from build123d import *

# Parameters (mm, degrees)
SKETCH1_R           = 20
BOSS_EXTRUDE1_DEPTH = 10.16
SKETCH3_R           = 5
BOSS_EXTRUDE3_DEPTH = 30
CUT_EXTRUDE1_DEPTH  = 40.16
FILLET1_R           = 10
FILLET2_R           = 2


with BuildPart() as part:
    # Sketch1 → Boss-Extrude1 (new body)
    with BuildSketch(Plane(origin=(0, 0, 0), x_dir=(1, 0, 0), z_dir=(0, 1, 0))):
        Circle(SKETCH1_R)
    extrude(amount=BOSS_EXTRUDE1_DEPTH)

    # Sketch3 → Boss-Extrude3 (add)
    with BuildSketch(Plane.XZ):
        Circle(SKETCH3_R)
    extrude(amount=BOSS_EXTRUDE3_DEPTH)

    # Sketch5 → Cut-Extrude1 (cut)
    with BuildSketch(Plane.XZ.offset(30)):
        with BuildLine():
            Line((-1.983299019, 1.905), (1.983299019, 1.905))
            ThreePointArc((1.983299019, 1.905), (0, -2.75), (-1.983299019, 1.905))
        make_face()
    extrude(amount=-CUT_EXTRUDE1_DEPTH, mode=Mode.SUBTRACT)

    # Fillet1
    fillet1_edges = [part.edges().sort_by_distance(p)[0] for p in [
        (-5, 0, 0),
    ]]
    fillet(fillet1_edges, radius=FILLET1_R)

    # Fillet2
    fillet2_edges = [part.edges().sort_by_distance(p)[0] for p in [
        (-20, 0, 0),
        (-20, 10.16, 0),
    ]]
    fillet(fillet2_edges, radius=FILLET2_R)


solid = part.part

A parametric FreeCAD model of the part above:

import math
import FreeCAD as App
import Part
import Sketcher
from FreeCAD import Vector
Q = App.Units.Quantity


def edges_at(feature, points):
    """Names of the edges that pass closest to the given points."""
    edges = feature.Shape.Edges
    near = lambda p: min(range(len(edges)), key=lambda i: edges[i].distToShape(Part.Vertex(*p))[0])
    return sorted({f"Edge{near(p) + 1}" for p in points})

doc = App.newDocument("Part")
body = doc.addObject("PartDesign::Body", "Body")

# Sketch on XZ plane
sketch1 = body.newObject("Sketcher::SketchObject", "Sketch")
sketch1.AttachmentSupport = (doc.getObject("XZ_Plane"), [""])
sketch1.MapMode = "FlatFace"
sketch1.addGeometry(Part.Circle(Vector(0, 0, 0), Vector(0, 0, 1), 20), False)
sketch1.addConstraint(Sketcher.Constraint("Coincident", 0, 3, -1, 1))
sketch1.addConstraint(Sketcher.Constraint("Diameter", 0, Q("40 mm")))
pad1 = body.newObject("PartDesign::Pad", "Pad")
pad1.Profile = sketch1
pad1.Length = 10.16
pad1.Reversed = True

# Sketch on XZ plane
sketch2 = body.newObject("Sketcher::SketchObject", "Sketch001")
sketch2.AttachmentSupport = (doc.getObject("XZ_Plane"), [""])
sketch2.MapMode = "FlatFace"
sketch2.addGeometry(Part.Circle(Vector(0, 0, 0), Vector(0, 0, 1), 5), False)
sketch2.addConstraint(Sketcher.Constraint("Coincident", 0, 3, -1, 1))
sketch2.addConstraint(Sketcher.Constraint("Diameter", 0, Q("10 mm")))
pad2 = body.newObject("PartDesign::Pad", "Pad001")
pad2.Profile = sketch2
pad2.Length = 30

# Sketch on XZ plane
sketch3 = body.newObject("Sketcher::SketchObject", "Sketch002")
sketch3.AttachmentSupport = (doc.getObject("XZ_Plane"), [""])
sketch3.MapMode = "FlatFace"
sketch3.AttachmentOffset = App.Placement(Vector(0, 0, 30), App.Rotation())
sketch3.addGeometry(Part.LineSegment(Vector(2, 1.9, 0), Vector(-2, 1.9, 0)), False)
sketch3.addGeometry(Part.ArcOfCircle(Part.Circle(Vector(0, 0, 0), Vector(0, 0, 1), 2.8), math.radians(136), math.radians(404)), False)
sketch3.addConstraint(Sketcher.Constraint("Coincident", 0, 1, 1, 2))
sketch3.addConstraint(Sketcher.Constraint("Coincident", 1, 1, 0, 2))
sketch3.addConstraint(Sketcher.Constraint("Horizontal", 0))
sketch3.addConstraint(Sketcher.Constraint("Coincident", 1, 3, -1, 1))
sketch3.addConstraint(Sketcher.Constraint("Radius", 1, Q("2.75 mm")))
sketch3.addConstraint(Sketcher.Constraint("DistanceX", 0, 2, 0, 1, Q("3.966598 mm")))
pocket1 = body.newObject("PartDesign::Pocket", "Pocket")
pocket1.Profile = sketch3
pocket1.Length = 40.16
doc.recompute()

fillet = body.newObject("PartDesign::Fillet", "Fillet")
fillet.Base = (pocket1, edges_at(pocket1, [(-5, 0, 0)]))
fillet.Radius = 10
doc.recompute()

fillet2 = body.newObject("PartDesign::Fillet", "Fillet001")
fillet2.Base = (fillet, edges_at(fillet, [(-20, 0, 0), (-20, 10.16, 0)]))
fillet2.Radius = 2

doc.recompute()
